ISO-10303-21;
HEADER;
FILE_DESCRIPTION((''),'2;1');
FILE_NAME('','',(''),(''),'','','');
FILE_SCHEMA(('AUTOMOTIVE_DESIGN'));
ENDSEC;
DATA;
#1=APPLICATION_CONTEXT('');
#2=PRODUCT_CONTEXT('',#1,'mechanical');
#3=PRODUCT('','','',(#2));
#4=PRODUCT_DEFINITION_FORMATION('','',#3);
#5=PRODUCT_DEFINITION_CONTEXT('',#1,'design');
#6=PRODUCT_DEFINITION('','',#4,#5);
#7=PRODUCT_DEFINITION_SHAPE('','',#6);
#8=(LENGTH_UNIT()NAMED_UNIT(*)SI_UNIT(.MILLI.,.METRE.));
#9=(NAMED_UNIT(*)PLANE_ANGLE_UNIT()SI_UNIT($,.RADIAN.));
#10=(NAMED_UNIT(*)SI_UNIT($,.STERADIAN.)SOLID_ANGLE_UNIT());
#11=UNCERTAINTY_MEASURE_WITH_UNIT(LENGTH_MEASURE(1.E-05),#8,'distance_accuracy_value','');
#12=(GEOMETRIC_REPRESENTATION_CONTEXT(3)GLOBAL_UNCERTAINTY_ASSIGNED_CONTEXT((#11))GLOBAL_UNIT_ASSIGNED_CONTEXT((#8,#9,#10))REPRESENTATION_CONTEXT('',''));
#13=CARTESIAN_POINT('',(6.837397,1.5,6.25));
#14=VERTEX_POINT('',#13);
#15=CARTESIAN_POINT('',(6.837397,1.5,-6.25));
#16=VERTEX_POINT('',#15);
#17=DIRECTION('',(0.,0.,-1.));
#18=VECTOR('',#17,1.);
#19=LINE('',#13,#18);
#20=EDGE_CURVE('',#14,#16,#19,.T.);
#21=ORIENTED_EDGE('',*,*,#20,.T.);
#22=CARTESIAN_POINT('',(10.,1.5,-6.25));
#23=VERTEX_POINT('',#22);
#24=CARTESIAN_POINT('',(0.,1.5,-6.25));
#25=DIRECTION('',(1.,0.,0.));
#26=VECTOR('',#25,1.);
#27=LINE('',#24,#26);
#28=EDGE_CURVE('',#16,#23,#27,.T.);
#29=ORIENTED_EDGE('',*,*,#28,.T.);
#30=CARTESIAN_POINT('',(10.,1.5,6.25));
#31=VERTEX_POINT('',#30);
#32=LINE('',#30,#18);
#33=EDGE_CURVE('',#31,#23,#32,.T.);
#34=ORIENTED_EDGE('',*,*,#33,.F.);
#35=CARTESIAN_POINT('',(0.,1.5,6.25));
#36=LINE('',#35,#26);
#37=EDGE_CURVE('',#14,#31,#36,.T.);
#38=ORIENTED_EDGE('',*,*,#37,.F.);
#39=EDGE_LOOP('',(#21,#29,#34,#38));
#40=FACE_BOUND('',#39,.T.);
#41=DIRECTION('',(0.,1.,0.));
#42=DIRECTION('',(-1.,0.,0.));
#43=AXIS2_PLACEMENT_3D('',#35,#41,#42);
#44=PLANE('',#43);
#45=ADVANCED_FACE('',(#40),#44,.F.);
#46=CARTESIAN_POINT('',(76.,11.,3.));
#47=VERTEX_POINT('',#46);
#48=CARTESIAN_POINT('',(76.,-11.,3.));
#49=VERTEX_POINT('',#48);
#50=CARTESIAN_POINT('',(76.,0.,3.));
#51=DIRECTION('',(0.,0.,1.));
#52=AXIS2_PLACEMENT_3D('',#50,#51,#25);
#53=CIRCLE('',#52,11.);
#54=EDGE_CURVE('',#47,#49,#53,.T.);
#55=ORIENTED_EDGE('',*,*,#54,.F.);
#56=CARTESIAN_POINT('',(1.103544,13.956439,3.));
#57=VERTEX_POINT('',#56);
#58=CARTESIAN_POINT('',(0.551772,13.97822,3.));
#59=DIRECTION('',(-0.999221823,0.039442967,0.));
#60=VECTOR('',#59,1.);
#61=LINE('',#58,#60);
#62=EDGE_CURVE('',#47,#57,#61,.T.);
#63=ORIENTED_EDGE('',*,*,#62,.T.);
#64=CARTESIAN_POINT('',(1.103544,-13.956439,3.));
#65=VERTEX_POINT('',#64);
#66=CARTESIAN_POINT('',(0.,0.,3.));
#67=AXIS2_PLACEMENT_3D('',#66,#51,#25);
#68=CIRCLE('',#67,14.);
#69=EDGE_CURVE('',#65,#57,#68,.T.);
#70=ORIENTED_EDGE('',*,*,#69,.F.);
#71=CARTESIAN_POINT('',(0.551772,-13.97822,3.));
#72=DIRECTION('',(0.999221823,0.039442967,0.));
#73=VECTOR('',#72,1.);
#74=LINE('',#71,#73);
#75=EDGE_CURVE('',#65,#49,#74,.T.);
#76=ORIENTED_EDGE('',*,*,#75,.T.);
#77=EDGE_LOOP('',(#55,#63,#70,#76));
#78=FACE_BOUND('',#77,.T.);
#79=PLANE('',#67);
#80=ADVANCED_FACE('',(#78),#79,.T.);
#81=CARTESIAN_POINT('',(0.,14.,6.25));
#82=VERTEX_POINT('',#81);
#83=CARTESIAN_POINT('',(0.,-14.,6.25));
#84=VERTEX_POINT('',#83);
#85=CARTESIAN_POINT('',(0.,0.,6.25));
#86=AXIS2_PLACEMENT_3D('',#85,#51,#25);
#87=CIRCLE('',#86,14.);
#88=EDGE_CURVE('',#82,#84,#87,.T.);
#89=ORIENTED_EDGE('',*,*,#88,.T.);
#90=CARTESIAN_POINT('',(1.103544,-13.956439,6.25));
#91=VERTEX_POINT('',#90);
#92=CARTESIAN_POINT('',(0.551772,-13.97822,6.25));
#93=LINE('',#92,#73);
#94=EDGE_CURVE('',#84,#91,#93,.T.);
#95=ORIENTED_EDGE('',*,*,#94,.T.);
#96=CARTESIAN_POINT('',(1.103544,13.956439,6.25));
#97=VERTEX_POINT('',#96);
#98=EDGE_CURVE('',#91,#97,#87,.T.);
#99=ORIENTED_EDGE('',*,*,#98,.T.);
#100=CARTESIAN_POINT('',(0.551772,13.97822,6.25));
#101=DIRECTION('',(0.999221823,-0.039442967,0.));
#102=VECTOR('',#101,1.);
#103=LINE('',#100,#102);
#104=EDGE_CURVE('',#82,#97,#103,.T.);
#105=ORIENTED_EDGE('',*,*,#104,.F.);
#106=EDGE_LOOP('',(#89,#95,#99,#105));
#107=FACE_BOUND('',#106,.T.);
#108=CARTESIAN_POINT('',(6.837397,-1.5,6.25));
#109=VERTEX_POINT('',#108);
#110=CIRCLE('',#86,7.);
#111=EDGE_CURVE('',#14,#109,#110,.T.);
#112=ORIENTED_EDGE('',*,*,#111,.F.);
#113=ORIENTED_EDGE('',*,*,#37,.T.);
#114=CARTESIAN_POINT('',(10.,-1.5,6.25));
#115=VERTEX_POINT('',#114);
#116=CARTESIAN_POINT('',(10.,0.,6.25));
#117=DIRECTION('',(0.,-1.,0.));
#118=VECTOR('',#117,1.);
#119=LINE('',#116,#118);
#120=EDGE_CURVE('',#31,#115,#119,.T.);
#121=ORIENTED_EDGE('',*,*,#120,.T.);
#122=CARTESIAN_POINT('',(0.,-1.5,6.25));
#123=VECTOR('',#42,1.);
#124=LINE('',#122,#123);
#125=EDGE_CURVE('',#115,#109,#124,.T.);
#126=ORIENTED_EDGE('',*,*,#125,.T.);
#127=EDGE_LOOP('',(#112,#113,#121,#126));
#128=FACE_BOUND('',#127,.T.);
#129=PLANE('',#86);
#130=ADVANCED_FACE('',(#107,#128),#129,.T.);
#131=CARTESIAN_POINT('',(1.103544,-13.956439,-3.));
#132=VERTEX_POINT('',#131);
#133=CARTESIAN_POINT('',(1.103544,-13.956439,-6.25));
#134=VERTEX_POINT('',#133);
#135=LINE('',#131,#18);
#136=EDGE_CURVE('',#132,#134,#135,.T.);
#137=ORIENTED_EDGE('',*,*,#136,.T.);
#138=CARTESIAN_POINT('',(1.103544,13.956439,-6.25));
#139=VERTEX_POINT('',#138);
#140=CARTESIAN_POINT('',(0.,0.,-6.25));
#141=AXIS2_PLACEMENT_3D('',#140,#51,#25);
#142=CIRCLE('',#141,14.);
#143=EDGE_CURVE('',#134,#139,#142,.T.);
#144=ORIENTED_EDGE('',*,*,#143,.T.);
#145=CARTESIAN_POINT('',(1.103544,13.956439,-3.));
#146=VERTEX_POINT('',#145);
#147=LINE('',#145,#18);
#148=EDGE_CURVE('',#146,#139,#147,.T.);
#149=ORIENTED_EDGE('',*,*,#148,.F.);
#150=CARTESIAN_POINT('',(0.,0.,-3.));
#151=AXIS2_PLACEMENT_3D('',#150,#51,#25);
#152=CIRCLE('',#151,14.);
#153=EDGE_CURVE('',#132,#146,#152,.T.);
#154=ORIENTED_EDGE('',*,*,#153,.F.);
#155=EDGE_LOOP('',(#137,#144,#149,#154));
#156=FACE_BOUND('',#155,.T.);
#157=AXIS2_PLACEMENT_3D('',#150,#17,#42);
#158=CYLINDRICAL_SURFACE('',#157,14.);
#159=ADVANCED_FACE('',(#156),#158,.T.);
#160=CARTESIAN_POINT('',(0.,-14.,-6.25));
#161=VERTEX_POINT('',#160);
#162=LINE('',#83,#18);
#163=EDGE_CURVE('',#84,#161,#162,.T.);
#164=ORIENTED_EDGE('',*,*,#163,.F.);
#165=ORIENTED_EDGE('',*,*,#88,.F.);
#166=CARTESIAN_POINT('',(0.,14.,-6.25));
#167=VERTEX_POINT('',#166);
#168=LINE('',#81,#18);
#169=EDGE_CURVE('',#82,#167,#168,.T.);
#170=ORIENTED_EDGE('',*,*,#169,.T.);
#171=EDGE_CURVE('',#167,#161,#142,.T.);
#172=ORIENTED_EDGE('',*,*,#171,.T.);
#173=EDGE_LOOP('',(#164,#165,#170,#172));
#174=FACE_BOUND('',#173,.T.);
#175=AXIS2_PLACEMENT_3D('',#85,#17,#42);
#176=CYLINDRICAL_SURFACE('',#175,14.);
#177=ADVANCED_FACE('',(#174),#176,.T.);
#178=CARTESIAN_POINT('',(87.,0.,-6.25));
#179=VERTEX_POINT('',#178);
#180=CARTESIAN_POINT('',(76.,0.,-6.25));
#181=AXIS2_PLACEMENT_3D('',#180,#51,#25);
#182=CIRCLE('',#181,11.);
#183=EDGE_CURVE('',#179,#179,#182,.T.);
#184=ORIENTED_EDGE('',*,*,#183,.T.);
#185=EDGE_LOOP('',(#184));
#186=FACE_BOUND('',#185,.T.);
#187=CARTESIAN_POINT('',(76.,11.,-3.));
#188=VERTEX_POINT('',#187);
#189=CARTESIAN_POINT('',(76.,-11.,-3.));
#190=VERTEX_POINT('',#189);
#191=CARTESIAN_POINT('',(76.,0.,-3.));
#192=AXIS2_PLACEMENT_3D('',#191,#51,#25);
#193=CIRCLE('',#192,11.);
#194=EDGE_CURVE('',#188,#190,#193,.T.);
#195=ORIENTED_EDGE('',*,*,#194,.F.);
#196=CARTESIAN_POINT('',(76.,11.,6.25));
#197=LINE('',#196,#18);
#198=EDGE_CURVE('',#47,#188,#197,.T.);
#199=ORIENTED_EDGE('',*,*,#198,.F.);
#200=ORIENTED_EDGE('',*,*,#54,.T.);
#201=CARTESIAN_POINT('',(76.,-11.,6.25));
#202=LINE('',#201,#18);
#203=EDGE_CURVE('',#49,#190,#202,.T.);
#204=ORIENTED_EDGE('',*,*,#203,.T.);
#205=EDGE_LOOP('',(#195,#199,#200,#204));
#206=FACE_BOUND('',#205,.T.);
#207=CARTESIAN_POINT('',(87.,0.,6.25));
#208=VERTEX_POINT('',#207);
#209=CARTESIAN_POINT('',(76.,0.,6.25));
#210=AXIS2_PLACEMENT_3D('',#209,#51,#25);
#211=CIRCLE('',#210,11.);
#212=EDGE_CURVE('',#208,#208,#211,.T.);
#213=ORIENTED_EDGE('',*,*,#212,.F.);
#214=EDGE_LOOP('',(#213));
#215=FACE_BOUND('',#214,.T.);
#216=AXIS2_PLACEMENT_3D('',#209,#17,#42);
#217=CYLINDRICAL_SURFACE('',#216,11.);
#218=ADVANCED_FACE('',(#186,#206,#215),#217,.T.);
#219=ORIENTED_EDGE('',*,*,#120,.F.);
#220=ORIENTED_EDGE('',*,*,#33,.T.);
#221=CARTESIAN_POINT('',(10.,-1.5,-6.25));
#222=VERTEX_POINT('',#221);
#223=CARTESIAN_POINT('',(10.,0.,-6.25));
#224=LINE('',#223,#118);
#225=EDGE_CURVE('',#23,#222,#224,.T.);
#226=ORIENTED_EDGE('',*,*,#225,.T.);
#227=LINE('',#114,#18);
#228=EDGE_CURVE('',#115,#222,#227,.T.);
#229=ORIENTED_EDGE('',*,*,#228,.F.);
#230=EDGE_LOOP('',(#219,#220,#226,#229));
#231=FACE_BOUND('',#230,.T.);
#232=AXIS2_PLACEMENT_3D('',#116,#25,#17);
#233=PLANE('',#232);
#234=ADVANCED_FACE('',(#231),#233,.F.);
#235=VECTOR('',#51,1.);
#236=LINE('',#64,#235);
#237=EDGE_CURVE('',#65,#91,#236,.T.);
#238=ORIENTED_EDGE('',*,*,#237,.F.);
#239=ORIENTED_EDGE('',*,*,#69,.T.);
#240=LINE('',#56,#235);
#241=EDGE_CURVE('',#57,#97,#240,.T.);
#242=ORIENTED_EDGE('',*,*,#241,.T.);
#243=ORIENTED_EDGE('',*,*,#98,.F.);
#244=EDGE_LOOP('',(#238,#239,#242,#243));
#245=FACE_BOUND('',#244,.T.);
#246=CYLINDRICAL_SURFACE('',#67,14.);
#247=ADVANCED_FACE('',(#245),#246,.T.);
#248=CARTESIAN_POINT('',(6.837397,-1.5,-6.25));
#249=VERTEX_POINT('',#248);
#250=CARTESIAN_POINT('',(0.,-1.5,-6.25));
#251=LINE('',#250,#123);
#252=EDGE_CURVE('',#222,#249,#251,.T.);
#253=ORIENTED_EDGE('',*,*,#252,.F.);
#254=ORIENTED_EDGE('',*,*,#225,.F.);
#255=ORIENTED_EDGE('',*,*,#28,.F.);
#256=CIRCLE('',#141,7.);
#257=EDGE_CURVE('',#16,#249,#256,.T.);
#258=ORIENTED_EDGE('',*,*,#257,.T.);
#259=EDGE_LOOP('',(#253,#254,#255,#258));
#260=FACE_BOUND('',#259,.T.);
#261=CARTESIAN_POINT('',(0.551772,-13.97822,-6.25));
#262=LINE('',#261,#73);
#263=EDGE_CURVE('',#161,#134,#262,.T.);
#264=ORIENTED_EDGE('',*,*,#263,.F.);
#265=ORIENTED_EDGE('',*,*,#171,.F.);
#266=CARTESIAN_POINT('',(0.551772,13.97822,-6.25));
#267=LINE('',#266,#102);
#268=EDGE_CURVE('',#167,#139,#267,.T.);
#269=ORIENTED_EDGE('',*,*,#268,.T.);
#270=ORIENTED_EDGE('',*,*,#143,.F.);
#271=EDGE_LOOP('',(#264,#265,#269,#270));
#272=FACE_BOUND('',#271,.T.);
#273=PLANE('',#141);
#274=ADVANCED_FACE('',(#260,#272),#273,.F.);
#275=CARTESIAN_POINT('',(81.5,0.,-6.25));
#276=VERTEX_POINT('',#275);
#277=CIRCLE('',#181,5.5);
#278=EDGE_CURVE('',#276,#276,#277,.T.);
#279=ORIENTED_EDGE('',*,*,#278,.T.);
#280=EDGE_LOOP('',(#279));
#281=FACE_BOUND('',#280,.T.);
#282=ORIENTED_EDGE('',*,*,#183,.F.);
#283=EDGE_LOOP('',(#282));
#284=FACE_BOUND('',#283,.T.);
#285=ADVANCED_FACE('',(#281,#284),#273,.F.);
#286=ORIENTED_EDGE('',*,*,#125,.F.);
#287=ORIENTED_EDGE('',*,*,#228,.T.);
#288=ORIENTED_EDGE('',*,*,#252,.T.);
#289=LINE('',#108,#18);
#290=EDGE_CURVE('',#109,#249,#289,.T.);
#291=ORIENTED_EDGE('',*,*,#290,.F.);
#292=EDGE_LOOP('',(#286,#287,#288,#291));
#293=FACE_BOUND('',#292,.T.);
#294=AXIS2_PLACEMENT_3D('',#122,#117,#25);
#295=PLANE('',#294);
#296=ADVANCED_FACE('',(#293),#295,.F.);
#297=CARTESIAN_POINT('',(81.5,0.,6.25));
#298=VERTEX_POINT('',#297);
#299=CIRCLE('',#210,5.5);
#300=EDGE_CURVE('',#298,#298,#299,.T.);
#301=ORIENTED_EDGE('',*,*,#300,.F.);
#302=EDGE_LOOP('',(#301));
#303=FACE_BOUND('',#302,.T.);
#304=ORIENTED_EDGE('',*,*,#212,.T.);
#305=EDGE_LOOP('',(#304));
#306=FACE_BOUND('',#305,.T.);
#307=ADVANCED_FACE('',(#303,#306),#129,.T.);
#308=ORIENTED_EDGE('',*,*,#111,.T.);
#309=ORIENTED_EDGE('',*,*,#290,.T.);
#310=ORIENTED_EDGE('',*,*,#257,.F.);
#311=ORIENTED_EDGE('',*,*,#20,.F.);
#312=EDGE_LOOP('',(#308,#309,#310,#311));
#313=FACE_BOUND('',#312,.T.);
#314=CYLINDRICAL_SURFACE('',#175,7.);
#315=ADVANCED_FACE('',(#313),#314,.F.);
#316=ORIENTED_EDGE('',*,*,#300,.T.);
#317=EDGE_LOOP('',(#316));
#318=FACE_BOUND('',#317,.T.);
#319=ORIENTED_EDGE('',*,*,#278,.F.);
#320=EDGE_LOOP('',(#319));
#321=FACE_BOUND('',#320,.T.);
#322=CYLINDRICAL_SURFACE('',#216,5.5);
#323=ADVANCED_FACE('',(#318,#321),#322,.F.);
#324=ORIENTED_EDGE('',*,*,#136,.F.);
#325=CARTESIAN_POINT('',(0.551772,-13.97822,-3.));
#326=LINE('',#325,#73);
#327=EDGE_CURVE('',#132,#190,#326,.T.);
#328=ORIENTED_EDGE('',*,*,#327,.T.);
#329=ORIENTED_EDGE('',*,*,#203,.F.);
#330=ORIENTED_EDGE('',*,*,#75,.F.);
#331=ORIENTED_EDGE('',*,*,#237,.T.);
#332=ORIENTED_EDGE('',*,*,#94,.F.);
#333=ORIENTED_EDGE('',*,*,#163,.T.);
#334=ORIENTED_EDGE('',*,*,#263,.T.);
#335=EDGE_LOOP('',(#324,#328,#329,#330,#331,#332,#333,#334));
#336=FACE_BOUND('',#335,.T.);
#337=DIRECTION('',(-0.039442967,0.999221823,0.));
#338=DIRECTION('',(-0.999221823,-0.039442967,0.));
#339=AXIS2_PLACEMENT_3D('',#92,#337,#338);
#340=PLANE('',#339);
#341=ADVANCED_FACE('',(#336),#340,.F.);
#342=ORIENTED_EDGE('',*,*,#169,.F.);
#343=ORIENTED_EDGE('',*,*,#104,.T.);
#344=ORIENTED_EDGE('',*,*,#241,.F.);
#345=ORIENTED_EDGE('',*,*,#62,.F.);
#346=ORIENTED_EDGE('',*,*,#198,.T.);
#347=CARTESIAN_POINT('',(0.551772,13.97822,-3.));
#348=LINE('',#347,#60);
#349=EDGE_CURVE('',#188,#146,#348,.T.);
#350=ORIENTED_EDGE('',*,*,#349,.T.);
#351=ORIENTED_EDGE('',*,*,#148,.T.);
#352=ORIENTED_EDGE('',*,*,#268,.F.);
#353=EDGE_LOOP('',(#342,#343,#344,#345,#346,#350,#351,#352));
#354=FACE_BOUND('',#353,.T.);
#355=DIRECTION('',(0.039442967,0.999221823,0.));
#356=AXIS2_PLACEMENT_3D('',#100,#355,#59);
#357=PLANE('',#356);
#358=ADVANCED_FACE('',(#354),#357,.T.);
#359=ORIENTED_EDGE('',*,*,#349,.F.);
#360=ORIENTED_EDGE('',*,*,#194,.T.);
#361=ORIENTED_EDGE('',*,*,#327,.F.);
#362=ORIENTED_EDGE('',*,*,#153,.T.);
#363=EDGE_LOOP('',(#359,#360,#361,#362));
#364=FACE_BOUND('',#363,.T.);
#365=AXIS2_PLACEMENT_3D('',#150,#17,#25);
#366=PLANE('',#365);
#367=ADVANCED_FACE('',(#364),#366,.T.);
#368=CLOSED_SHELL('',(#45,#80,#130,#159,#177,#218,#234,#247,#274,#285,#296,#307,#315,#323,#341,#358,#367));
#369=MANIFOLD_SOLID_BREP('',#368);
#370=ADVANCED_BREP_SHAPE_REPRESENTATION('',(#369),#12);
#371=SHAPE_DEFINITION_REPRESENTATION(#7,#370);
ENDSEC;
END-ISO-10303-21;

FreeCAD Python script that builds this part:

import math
import FreeCAD as App
import Part
import Sketcher

doc = App.newDocument("Part")
body = doc.addObject("PartDesign::Body", "Body")

sketch1 = body.newObject("Sketcher::SketchObject", "Sketch")
sketch1.AttachmentSupport = (doc.getObject("XY_Plane"), [""])
sketch1.MapMode = "FlatFace"
sketch1.addGeometry(Part.ArcOfCircle(Part.Circle(App.Vector(0, 0, 0), App.Vector(0, 0, 1), 14), math.radians(90), math.radians(270)), False)
sketch1.addGeometry(Part.LineSegment(App.Vector(0, -14, 0), App.Vector(76, -11, 0)), False)
sketch1.addGeometry(Part.ArcOfCircle(Part.Circle(App.Vector(76, 0, 0), App.Vector(0, 0, 1), 11), math.radians(-90), math.radians(90)), False)
sketch1.addGeometry(Part.LineSegment(App.Vector(76, 11, 0), App.Vector(0, 14, 0)), False)
sketch1.addGeometry(Part.LineSegment(App.Vector(10, -1.5, 0), App.Vector(6.8, -1.5, 0)), False)
sketch1.addGeometry(Part.ArcOfCircle(Part.Circle(App.Vector(0, 0, 0), App.Vector(0, 0, 1), 7), math.radians(12), math.radians(348)), False)
sketch1.addGeometry(Part.LineSegment(App.Vector(6.8, 1.5, 0), App.Vector(10, 1.5, 0)), False)
sketch1.addGeometry(Part.LineSegment(App.Vector(10, 1.5, 0), App.Vector(10, -1.5, 0)), False)
sketch1.addGeometry(Part.Circle(App.Vector(76, 0, 0), App.Vector(0, 0, 1), 5.5), False)
sketch1.addConstraint(Sketcher.Constraint("Coincident", 0, 2, 1, 1))
sketch1.addConstraint(Sketcher.Constraint("Coincident", 1, 2, 2, 1))
sketch1.addConstraint(Sketcher.Constraint("Coincident", 2, 2, 3, 1))
sketch1.addConstraint(Sketcher.Constraint("Coincident", 3, 2, 0, 1))
sketch1.addConstraint(Sketcher.Constraint("Coincident", 4, 2, 5, 2))
sketch1.addConstraint(Sketcher.Constraint("Coincident", 5, 1, 6, 1))
sketch1.addConstraint(Sketcher.Constraint("Coincident", 6, 2, 7, 1))
sketch1.addConstraint(Sketcher.Constraint("Coincident", 7, 2, 4, 1))
sketch1.addConstraint(Sketcher.Constraint("Horizontal", 4))
sketch1.addConstraint(Sketcher.Constraint("Horizontal", 6))
sketch1.addConstraint(Sketcher.Constraint("Vertical", 7))
sketch1.addConstraint(Sketcher.Constraint("Coincident", 0, 3, -1, 1))
sketch1.addConstraint(Sketcher.Constraint("Coincident", 5, 3, -1, 1))
sketch1.addConstraint(Sketcher.Constraint("Coincident", 8, 3, 2, 3))
sketch1.addConstraint(Sketcher.Constraint("Symmetric", 1, 2, 2, 2, -1))
sketch1.addConstraint(Sketcher.Constraint("PointOnObject", 0, 2, -2))
sketch1.addConstraint(Sketcher.Constraint("PointOnObject", 3, 2, -2))
sketch1.addConstraint(Sketcher.Constraint("Vertical", 8, 3, 1, 2))
sketch1.addConstraint(Sketcher.Constraint("Vertical", 4, 2, 5, 1))
sketch1.addConstraint(Sketcher.Constraint("Diameter", 8, 11.0))
sketch1.addConstraint(Sketcher.Constraint("Radius", 0, 14.0))
sketch1.addConstraint(Sketcher.Constraint("Radius", 2, 11.0))
sketch1.addConstraint(Sketcher.Constraint("Radius", 5, 7.0))
sketch1.addConstraint(Sketcher.Constraint("DistanceY", 7, 2, 7, 1, 3.0))
sketch1.addConstraint(Sketcher.Constraint("DistanceX", -1, 1, 2, 3, 76.0))
sketch1.addConstraint(Sketcher.Constraint("DistanceX", -1, 1, 6, 2, 10.0))
pad1 = body.newObject("PartDesign::Pad", "Pad")
pad1.Profile = sketch1
pad1.Length = 12.5
pad1.Midplane = True

sketch2 = body.newObject("Sketcher::SketchObject", "Sketch001")
sketch2.AttachmentSupport = (doc.getObject("XY_Plane"), [""])
sketch2.MapMode = "FlatFace"
sketch2.AttachmentOffset = App.Placement(App.Vector(0, 0, 6.25), App.Rotation())
sketch2.addGeometry(Part.LineSegment(App.Vector(76, 11, 0), App.Vector(1, 14, 0)), False)
sketch2.addGeometry(Part.ArcOfCircle(Part.Circle(App.Vector(0, 0, 0), App.Vector(0, 0, 1), 14), math.radians(-85), math.radians(85)), False)
sketch2.addGeometry(Part.LineSegment(App.Vector(1, -14, 0), App.Vector(76, -11, 0)), False)
sketch2.addGeometry(Part.ArcOfCircle(Part.Circle(App.Vector(76, 0, 0), App.Vector(0, 0, 1), 11), math.radians(90), math.radians(270)), False)
sketch2.addConstraint(Sketcher.Constraint("Coincident", 0, 2, 1, 2))
sketch2.addConstraint(Sketcher.Constraint("Coincident", 1, 1, 2, 1))
sketch2.addConstraint(Sketcher.Constraint("Coincident", 2, 2, 3, 2))
sketch2.addConstraint(Sketcher.Constraint("Coincident", 3, 1, 0, 1))
sketch2.addConstraint(Sketcher.Constraint("Coincident", 1, 3, -1, 1))
sketch2.addConstraint(Sketcher.Constraint("Symmetric", 2, 2, 3, 1, -1))
sketch2.addConstraint(Sketcher.Constraint("Vertical", 0, 2, 1, 1))
sketch2.addConstraint(Sketcher.Constraint("Vertical", 3, 3, 2, 2))
sketch2.addConstraint(Sketcher.Constraint("Radius", 1, 14.0))
sketch2.addConstraint(Sketcher.Constraint("Radius", 3, 11.0))
sketch2.addConstraint(Sketcher.Constraint("DistanceX", -1, 1, 3, 3, 76.0))
sketch2.addConstraint(Sketcher.Constraint("DistanceY", -1, 1, 0, 2, 13.956439))
pocket1 = body.newObject("PartDesign::Pocket", "Pocket")
pocket1.Profile = sketch2
pocket1.Length = 3.25
doc.recompute()

mirrored = body.newObject("PartDesign::Mirrored", "Mirrored")
mirrored.Originals = [pocket1]
mirrored.MirrorPlane = (doc.getObject("XY_Plane"), [""])
body.Tip = mirrored

doc.recompute()
